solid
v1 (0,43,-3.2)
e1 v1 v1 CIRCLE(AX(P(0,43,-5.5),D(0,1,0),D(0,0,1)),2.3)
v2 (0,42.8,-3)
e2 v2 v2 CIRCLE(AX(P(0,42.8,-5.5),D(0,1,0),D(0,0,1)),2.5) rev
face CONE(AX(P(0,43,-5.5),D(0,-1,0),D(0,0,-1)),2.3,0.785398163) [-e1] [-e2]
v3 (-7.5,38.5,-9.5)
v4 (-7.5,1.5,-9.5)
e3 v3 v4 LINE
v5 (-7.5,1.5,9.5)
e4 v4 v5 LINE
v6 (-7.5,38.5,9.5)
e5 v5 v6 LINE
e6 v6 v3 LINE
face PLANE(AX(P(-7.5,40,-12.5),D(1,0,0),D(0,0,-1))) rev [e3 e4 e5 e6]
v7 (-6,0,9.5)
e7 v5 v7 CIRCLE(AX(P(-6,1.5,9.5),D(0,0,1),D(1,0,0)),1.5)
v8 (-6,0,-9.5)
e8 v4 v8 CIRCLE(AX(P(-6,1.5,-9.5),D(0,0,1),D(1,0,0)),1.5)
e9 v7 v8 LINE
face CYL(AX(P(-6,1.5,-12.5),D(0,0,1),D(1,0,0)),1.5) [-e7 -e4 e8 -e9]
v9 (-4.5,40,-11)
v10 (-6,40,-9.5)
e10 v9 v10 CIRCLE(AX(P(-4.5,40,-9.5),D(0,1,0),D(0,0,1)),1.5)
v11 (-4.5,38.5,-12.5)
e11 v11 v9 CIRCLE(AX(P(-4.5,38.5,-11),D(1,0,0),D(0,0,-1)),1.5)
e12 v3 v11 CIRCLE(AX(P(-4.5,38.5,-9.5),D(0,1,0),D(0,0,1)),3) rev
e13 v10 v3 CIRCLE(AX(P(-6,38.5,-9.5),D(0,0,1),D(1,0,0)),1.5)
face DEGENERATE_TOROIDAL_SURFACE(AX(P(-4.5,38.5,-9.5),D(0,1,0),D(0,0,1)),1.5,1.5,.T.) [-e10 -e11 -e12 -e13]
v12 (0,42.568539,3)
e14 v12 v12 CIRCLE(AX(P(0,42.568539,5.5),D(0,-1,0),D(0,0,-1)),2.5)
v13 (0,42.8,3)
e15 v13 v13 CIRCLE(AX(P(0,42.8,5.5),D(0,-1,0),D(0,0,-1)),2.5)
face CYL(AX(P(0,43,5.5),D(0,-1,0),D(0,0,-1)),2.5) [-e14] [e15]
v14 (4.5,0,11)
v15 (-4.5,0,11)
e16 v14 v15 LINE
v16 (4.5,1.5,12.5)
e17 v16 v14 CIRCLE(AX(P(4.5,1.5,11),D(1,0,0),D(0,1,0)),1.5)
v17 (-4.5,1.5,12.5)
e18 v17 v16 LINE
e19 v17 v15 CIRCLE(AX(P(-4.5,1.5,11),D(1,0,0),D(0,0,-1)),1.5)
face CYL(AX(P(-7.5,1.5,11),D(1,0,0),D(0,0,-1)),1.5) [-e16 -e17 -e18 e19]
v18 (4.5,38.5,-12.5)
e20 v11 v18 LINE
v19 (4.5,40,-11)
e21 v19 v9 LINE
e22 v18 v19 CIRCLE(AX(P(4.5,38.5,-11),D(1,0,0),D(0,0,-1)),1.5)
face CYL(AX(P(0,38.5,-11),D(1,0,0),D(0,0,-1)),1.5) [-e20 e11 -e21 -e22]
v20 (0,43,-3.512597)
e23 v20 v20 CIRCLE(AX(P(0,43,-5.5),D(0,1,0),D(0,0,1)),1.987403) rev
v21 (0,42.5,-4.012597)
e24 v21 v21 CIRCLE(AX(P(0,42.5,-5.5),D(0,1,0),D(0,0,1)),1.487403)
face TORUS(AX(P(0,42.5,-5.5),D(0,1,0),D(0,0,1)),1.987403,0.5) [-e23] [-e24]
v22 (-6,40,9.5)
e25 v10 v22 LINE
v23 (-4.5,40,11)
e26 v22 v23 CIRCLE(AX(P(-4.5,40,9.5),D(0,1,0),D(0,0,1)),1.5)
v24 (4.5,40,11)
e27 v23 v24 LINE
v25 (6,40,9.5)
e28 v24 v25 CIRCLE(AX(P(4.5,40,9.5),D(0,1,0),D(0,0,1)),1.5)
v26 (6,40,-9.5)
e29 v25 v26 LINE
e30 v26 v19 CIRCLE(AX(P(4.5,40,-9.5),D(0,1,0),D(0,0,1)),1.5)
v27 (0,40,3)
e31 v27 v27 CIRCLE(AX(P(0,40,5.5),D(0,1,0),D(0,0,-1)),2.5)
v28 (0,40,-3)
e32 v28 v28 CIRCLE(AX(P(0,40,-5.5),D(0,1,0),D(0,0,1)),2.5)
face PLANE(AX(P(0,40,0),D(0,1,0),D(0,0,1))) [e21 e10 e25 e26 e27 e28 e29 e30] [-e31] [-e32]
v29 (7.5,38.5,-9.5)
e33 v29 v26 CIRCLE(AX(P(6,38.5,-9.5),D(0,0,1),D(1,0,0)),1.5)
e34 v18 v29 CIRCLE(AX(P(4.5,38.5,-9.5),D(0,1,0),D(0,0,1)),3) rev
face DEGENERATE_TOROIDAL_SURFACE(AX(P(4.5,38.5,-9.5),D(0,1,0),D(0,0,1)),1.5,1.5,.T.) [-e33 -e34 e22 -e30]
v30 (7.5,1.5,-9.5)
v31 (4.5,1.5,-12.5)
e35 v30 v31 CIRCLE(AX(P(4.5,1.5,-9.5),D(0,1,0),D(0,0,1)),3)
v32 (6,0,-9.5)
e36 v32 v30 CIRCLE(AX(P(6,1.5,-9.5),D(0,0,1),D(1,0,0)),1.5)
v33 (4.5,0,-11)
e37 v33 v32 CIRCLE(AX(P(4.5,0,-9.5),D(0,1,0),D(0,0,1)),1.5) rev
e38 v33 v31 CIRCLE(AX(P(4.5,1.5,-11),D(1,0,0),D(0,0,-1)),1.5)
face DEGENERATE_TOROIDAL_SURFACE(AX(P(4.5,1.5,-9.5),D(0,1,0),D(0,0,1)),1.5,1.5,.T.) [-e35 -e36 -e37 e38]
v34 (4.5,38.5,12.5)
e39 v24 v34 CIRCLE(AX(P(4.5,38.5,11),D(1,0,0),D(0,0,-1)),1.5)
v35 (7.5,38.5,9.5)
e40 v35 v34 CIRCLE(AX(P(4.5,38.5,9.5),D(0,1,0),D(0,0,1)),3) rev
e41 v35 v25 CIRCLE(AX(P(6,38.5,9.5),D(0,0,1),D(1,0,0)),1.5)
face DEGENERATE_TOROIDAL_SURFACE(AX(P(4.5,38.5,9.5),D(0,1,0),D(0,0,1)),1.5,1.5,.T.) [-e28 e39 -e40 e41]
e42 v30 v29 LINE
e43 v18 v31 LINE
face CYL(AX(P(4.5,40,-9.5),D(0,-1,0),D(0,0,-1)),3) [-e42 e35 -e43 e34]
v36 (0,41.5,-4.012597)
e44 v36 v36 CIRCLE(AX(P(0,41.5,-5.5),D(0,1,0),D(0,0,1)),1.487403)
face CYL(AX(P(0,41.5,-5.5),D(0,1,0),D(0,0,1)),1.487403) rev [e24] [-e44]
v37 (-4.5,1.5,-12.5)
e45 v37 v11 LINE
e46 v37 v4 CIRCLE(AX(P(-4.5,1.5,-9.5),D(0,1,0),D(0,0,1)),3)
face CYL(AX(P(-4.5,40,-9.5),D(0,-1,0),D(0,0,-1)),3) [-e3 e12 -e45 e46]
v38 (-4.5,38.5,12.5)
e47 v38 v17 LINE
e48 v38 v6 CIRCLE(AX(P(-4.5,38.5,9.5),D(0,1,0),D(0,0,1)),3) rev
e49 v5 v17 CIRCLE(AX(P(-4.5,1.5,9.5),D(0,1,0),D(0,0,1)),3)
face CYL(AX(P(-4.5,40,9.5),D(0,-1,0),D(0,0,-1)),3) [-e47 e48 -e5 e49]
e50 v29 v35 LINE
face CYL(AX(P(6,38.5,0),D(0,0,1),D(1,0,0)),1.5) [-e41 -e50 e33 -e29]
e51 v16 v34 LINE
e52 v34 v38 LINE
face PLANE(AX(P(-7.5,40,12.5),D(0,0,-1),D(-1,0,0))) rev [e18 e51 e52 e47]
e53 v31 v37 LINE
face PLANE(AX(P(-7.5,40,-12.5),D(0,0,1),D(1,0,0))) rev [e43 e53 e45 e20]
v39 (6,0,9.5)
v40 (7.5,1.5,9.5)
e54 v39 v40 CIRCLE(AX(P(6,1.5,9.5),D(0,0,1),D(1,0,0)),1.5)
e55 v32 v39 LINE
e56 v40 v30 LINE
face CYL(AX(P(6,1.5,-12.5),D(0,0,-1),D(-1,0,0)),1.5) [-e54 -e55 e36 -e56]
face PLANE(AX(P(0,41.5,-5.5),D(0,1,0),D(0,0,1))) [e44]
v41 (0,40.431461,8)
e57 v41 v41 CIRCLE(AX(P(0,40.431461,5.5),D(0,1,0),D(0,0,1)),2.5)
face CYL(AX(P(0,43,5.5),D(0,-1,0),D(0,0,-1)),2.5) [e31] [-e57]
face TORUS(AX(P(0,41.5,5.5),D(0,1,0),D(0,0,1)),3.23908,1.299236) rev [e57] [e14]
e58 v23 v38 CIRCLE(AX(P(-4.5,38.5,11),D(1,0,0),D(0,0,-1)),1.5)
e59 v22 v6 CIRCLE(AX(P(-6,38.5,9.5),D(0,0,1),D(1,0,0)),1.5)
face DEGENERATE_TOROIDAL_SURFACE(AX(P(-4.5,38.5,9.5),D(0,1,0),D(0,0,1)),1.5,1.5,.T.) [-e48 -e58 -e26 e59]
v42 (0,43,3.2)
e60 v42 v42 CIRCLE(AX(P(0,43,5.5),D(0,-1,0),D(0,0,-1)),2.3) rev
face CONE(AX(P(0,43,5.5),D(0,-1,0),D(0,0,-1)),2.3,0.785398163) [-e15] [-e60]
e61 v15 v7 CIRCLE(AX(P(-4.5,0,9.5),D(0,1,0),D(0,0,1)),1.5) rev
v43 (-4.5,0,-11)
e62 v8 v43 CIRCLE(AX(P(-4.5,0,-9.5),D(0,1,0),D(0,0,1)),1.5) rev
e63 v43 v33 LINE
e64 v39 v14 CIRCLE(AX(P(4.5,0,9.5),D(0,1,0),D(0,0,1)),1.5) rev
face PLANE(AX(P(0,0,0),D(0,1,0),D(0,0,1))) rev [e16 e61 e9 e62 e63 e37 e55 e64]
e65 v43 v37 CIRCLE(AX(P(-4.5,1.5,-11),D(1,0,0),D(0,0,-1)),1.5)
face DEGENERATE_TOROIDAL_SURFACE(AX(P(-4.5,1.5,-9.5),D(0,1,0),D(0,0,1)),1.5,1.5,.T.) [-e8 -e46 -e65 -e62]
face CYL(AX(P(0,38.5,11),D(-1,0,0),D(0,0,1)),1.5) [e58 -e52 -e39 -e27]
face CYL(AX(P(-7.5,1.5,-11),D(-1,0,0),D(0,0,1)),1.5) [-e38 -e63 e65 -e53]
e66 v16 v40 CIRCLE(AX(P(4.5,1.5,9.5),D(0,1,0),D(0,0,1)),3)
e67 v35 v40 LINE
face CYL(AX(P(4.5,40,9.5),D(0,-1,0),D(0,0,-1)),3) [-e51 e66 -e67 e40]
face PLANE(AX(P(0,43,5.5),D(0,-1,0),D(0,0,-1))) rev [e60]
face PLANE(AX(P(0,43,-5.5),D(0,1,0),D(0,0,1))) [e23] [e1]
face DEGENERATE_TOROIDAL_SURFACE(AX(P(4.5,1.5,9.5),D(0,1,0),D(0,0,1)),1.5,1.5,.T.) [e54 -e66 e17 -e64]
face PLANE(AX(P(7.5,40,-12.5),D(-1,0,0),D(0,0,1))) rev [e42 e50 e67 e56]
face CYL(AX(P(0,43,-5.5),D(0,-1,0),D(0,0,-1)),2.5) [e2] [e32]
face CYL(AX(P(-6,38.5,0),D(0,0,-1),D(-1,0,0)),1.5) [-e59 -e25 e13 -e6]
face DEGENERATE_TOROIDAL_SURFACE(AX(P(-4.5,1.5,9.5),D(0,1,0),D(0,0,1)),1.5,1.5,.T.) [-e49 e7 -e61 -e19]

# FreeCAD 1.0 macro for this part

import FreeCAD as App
import Part
import Sketcher

V = App.Vector


def edges_at(feature, points):
    """Names of the edges that pass closest to the given points."""
    edges = feature.Shape.Edges
    near = lambda p: min(range(len(edges)), key=lambda i: edges[i].distToShape(Part.Vertex(*p))[0])
    return sorted({f"Edge{near(p) + 1}" for p in points})

doc = App.newDocument("Part")
body = doc.addObject("PartDesign::Body", "Body")

sketch1 = body.newObject("Sketcher::SketchObject", "Sketch")
sketch1.AttachmentSupport = (doc.getObject("XZ_Plane"), [""])
sketch1.MapMode = "FlatFace"
sketch1.addGeometry(Part.LineSegment(V(-8, -12, 0), V(-8, 12, 0)), False)
sketch1.addGeometry(Part.LineSegment(V(-8, 12, 0), V(8, 12, 0)), False)
sketch1.addGeometry(Part.LineSegment(V(8, 12, 0), V(8, -12, 0)), False)
sketch1.addGeometry(Part.LineSegment(V(8, -12, 0), V(-8, -12, 0)), False)
sketch1.addConstraint(Sketcher.Constraint("Coincident", 0, 2, 1, 1))
sketch1.addConstraint(Sketcher.Constraint("Coincident", 1, 2, 2, 1))
sketch1.addConstraint(Sketcher.Constraint("Coincident", 2, 2, 3, 1))
sketch1.addConstraint(Sketcher.Constraint("Coincident", 3, 2, 0, 1))
sketch1.addConstraint(Sketcher.Constraint("Vertical", 0))
sketch1.addConstraint(Sketcher.Constraint("Horizontal", 1))
sketch1.addConstraint(Sketcher.Constraint("Vertical", 2))
sketch1.addConstraint(Sketcher.Constraint("Horizontal", 3))
sketch1.addConstraint(Sketcher.Constraint("Symmetric", 0, 2, 2, 2, -1, 1))
sketch1.addConstraint(Sketcher.Constraint("DistanceX", 1, 1, 1, 2, 15.0))
sketch1.addConstraint(Sketcher.Constraint("DistanceY", 0, 1, 0, 2, 25.0))
pad1 = body.newObject("PartDesign::Pad", "Pad")
pad1.Profile = sketch1
pad1.Length = 40
pad1.Reversed = True
doc.recompute()

fillet = body.newObject("PartDesign::Fillet", "Fillet")
fillet.Base = (pad1, edges_at(pad1, [
    (7.5, 20, 12.5),
    (-7.5, 20, 12.5),
    (-7.5, 20, -12.5),
    (7.5, 20, -12.5),
]))
fillet.Radius = 3
doc.recompute()

fillet2 = body.newObject("PartDesign::Fillet", "Fillet001")
fillet2.Base = (fillet, edges_at(fillet, [
    (-7.5, 0, 0),
    (7.5, 0, 0),
    (0, 0, 12.5),
    (0, 0, -12.5),
    (6.621, 0, 11.621),
    (-6.621, 0, 11.621),
    (6.621, 0, -11.621),
    (-6.621, 0, -11.621),
]))
fillet2.Radius = 1.5
doc.recompute()

fillet3 = body.newObject("PartDesign::Fillet", "Fillet002")
fillet3.Base = (fillet2, edges_at(fillet2, [
    (-7.5, 40, 0),
    (0, 40, -12.5),
    (7.5, 40, 0),
    (0, 40, 12.5),
    (6.621, 40, 11.621),
    (-6.621, 40, 11.621),
    (6.621, 40, -11.621),
    (-6.621, 40, -11.621),
]))
fillet3.Radius = 1.5

sketch2 = body.newObject("Sketcher::SketchObject", "Sketch001")
sketch2.AttachmentSupport = (doc.getObject("XZ_Plane"), [""])
sketch2.MapMode = "FlatFace"
sketch2.AttachmentOffset = App.Placement(V(0, 0, -40), App.Rotation())
sketch2.addGeometry(Part.Circle(V(0, -5.5, 0), V(0, 0, 1), 2.5), False)
sketch2.addGeometry(Part.Circle(V(0, 5.5, 0), V(0, 0, 1), 2.5), False)
sketch2.addConstraint(Sketcher.Constraint("Equal", 0, 1))
sketch2.addConstraint(Sketcher.Constraint("Symmetric", 0, 3, 1, 3, -1, 1))
sketch2.addConstraint(Sketcher.Constraint("PointOnObject", 0, 3, -2))
sketch2.addConstraint(Sketcher.Constraint("Diameter", 0, 5.0))
sketch2.addConstraint(Sketcher.Constraint("DistanceY", 0, 3, 1, 3, 11.0))
pad2 = body.newObject("PartDesign::Pad", "Pad001")
pad2.Profile = sketch2
pad2.Length = 3
pad2.Reversed = True

sketch3 = body.newObject("Sketcher::SketchObject", "Sketch002")
sketch3.AttachmentSupport = (doc.getObject("XZ_Plane"), [""])
sketch3.MapMode = "FlatFace"
sketch3.AttachmentOffset = App.Placement(V(0, 0, -43), App.Rotation())
sketch3.addGeometry(Part.Circle(V(0, -5.5, 0), V(0, 0, 1), 1.5), False)
sketch3.addConstraint(Sketcher.Constraint("PointOnObject", 0, 3, -2))
sketch3.addConstraint(Sketcher.Constraint("DistanceY", 0, 3, -1, 1, 5.5))
sketch3.addConstraint(Sketcher.Constraint("Diameter", 0, 2.974806))
pocket1 = body.newObject("PartDesign::Pocket", "Pocket")
pocket1.Profile = sketch3
pocket1.Length = 1.5
pocket1.Reversed = True
doc.recompute()

fillet4 = body.newObject("PartDesign::Fillet", "Fillet003")
fillet4.Base = (pocket1, edges_at(pocket1, [(0, 43, -6.987)]))
fillet4.Radius = 0.5
doc.recompute()

chamfer = body.newObject("PartDesign::Chamfer", "Chamfer")
chamfer.Base = (fillet4, edges_at(fillet4, [(0, 43, -8)]))
chamfer.Size = 0.2

sketch4 = body.newObject("Sketcher::SketchObject", "Sketch003")
sketch4.AttachmentSupport = (doc.getObject("YZ_Plane"), [""])
sketch4.MapMode = "FlatFace"
sketch4.addGeometry(Part.Circle(V(41.5, 2.3, 0), V(0, 0, 1), 1.3), False)
sketch4.addGeometry(Part.LineSegment(V(41.5, 5.5, 0), V(31.5, 5.5, 0)), True)
sketch4.addConstraint(Sketcher.Constraint("Horizontal", 1))
sketch4.addConstraint(Sketcher.Constraint("Vertical", 0, 3, 1, 1))
sketch4.addConstraint(Sketcher.Constraint("DistanceX", 1, 2, 1, 1, 10.0))
sketch4.addConstraint(Sketcher.Constraint("DistanceX", -1, 1, 0, 3, 41.5))
sketch4.addConstraint(Sketcher.Constraint("DistanceY", -1, 1, 1, 1, 5.5))
sketch4.addConstraint(Sketcher.Constraint("Diameter", 0, 2.598472))
sketch4.addConstraint(Sketcher.Constraint("DistanceY", -1, 1, 0, 3, 2.26092))
groove = body.newObject("PartDesign::Groove", "Groove")
groove.Profile = sketch4
groove.ReferenceAxis = (sketch4, ["Axis0"])
groove.Angle = 360
doc.recompute()

chamfer2 = body.newObject("PartDesign::Chamfer", "Chamfer001")
chamfer2.Base = (groove, edges_at(groove, [(0, 43, 8)]))
chamfer2.Size = 0.2

doc.recompute()
